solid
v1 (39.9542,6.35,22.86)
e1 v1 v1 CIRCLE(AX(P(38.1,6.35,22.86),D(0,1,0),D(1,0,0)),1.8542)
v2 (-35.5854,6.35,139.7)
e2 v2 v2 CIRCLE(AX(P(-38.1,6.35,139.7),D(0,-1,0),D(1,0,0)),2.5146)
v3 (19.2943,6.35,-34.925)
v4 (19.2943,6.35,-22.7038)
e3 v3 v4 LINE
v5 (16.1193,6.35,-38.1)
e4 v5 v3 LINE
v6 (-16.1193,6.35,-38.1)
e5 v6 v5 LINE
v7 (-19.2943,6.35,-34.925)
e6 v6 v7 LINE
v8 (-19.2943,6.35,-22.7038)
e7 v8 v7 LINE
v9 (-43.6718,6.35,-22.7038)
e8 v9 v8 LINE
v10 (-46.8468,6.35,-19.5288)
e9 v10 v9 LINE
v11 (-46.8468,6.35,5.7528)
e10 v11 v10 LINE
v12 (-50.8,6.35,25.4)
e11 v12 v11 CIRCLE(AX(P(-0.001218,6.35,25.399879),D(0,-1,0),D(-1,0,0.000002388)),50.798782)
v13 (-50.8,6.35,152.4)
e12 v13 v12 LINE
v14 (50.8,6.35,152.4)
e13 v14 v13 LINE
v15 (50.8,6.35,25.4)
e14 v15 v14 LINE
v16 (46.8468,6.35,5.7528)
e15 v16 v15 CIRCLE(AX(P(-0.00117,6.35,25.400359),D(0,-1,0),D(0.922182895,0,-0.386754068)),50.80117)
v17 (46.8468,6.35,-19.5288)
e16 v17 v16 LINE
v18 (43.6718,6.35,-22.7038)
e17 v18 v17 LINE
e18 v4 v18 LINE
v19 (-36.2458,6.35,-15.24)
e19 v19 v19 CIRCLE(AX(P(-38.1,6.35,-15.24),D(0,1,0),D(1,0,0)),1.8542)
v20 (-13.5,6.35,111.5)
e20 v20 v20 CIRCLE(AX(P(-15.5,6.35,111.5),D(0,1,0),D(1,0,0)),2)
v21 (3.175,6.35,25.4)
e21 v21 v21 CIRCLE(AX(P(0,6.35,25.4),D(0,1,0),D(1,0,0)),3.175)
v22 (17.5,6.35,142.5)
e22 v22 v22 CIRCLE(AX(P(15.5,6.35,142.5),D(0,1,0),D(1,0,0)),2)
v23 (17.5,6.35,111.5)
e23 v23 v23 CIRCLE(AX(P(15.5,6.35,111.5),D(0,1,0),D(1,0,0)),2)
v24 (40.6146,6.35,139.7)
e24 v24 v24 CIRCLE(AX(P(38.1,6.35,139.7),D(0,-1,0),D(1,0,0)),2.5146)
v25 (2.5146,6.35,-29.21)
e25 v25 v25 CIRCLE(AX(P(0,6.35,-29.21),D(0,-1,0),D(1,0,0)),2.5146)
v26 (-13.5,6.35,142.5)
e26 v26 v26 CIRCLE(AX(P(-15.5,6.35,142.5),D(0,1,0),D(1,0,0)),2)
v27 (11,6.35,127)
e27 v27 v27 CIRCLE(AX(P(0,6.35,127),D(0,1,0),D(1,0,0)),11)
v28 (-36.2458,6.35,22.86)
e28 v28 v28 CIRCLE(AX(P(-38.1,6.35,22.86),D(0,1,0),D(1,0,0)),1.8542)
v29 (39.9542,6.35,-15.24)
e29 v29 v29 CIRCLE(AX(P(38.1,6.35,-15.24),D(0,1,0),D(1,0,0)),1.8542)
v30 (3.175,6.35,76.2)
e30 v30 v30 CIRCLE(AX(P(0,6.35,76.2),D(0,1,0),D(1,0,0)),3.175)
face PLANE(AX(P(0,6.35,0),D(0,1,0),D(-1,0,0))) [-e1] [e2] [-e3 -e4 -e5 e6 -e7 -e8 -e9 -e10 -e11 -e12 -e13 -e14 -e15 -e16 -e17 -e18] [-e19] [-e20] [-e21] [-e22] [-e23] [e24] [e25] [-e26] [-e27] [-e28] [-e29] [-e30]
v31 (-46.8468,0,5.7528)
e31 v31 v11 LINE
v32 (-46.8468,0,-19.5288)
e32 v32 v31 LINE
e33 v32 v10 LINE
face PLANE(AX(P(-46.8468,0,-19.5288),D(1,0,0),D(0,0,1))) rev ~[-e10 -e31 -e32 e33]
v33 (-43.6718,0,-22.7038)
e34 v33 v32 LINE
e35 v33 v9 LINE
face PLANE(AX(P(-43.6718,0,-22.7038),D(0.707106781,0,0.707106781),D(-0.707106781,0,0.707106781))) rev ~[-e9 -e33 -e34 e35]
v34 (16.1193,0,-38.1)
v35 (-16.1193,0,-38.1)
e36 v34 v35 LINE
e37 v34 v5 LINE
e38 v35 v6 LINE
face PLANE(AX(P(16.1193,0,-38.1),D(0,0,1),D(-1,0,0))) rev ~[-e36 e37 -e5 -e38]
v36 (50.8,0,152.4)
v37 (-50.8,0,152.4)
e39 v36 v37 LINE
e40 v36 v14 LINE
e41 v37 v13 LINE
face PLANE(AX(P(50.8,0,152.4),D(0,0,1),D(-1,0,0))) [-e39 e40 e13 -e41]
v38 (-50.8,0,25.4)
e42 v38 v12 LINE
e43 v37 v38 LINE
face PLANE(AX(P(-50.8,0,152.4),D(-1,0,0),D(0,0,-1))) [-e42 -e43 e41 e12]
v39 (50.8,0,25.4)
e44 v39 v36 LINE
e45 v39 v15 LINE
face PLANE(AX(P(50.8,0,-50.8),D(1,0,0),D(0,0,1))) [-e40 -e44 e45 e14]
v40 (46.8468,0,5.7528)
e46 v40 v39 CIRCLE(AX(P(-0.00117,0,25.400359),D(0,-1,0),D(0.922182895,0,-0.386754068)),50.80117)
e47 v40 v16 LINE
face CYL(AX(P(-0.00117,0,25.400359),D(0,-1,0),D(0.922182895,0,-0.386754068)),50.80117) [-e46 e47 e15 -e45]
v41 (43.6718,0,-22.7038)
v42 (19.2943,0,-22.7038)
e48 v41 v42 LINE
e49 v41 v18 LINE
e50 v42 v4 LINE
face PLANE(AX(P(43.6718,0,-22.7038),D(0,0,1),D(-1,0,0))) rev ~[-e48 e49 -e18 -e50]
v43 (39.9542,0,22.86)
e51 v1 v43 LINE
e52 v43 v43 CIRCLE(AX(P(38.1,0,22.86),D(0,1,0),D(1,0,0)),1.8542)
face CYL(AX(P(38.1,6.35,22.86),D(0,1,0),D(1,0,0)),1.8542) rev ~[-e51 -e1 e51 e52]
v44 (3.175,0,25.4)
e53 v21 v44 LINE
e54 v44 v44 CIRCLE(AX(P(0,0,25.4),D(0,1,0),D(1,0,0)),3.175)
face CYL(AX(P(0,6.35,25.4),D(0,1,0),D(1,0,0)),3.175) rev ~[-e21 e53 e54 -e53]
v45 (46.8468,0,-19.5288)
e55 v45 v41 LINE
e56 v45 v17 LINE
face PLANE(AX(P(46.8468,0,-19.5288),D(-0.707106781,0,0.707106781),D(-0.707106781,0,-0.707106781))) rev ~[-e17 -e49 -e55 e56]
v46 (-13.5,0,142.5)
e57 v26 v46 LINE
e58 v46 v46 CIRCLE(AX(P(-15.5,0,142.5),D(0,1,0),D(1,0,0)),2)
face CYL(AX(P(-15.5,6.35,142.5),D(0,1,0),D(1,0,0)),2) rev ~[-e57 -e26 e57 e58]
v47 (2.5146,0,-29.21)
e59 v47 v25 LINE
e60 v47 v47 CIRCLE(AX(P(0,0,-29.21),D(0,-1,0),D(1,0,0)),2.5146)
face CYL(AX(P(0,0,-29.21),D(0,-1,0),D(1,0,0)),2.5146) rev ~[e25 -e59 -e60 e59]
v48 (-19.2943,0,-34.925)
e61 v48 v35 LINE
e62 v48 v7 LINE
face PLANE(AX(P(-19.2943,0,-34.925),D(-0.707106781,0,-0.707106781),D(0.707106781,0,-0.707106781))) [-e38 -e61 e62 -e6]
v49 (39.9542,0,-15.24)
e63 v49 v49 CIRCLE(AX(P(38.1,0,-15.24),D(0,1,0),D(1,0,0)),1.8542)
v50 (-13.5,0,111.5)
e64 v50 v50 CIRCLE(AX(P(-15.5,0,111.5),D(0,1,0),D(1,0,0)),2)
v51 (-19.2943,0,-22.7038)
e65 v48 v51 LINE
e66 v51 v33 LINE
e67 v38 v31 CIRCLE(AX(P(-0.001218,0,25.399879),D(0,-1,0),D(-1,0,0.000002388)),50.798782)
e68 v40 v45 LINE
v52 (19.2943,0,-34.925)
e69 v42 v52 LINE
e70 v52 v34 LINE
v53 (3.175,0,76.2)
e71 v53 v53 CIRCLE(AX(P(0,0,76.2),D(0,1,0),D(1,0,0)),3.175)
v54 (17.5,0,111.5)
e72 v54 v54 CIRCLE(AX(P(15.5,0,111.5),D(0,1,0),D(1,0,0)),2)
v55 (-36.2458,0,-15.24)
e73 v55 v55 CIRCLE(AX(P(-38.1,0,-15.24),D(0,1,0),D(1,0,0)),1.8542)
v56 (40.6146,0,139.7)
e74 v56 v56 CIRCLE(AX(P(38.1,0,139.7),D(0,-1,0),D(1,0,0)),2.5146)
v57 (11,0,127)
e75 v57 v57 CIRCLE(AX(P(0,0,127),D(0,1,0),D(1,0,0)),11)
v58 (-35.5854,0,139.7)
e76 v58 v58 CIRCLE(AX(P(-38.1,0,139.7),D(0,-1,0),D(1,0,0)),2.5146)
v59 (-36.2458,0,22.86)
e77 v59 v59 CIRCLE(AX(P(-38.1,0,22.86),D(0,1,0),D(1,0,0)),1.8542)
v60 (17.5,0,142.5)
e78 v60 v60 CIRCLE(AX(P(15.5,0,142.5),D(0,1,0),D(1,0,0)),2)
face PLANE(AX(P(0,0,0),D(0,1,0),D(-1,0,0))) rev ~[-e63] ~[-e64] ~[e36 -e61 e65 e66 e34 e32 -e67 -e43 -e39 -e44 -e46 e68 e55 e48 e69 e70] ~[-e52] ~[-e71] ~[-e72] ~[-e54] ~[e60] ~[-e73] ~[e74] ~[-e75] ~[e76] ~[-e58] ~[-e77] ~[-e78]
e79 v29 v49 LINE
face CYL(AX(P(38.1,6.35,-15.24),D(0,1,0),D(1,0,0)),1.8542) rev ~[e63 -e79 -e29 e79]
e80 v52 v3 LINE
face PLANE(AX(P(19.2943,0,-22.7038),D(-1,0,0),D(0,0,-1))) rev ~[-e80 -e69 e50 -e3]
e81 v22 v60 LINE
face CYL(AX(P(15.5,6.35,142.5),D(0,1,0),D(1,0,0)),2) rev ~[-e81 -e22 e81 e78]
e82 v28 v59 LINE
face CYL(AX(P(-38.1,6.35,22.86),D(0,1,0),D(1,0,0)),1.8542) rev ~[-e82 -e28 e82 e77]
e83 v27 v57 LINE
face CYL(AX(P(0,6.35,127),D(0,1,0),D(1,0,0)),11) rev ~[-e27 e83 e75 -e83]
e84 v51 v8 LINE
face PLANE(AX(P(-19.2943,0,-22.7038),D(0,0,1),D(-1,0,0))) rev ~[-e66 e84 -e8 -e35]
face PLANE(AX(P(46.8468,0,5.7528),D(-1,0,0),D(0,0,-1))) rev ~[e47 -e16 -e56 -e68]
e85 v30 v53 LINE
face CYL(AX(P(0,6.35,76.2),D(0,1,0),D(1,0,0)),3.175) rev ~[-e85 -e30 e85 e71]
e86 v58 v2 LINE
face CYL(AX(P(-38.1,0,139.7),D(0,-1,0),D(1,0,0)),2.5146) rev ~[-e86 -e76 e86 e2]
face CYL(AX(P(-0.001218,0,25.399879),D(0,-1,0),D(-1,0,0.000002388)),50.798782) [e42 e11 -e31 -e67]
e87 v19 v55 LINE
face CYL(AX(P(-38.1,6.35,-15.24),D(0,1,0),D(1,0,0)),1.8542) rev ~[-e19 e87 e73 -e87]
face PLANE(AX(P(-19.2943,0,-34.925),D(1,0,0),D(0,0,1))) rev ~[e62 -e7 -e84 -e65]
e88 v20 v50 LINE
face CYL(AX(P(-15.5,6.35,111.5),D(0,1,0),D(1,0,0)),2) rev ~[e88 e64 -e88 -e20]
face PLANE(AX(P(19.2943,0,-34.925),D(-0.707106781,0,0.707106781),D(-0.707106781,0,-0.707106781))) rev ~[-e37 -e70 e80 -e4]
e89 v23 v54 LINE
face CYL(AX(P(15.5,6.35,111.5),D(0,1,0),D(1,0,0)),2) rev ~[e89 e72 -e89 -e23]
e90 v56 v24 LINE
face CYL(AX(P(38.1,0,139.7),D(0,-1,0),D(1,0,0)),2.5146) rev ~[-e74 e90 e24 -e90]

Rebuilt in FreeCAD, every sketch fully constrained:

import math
import FreeCAD as App
import Part
import Sketcher

V = App.Vector
Q = App.Units.Quantity

doc = App.newDocument("Part")
body = doc.addObject("PartDesign::Body", "Body")

sketch1 = body.newObject("Sketcher::SketchObject", "Sketch")
sketch1.AttachmentSupport = (doc.getObject("XZ_Plane"), [""])
sketch1.MapMode = "FlatFace"
sketch1.addGeometry([
    Part.LineSegment(V(51, -51, 0), V(-51, -51, 0)),
    Part.LineSegment(V(-51, -51, 0), V(-51, 152, 0)),
    Part.LineSegment(V(-51, 152, 0), V(51, 152, 0)),
    Part.LineSegment(V(51, 152, 0), V(51, -51, 0)),
], False)
sketch1.addConstraint([
    Sketcher.Constraint("Coincident", 0, 2, 1, 1),
    Sketcher.Constraint("Coincident", 1, 2, 2, 1),
    Sketcher.Constraint("Coincident", 2, 2, 3, 1),
    Sketcher.Constraint("Coincident", 3, 2, 0, 1),
    Sketcher.Constraint("Horizontal", 0),
    Sketcher.Constraint("Vertical", 1),
    Sketcher.Constraint("Horizontal", 2),
    Sketcher.Constraint("Vertical", 3),
    Sketcher.Constraint("DistanceX", 0, 2, 0, 1, Q("4 in")),
    Sketcher.Constraint("DistanceY", 1, 1, 1, 2, Q("8 in")),
    Sketcher.Constraint("DistanceX", 0, 2, -1, 1, Q("2 in")),
    Sketcher.Constraint("DistanceY", 0, 2, -1, 1, Q("2 in")),
])
pad1 = body.newObject("PartDesign::Pad", "Pad")
pad1.Profile = sketch1
pad1.Length = Q("0.25 in")
pad1.Reversed = True

sketch2 = body.newObject("Sketcher::SketchObject", "Sketch001")
sketch2.AttachmentSupport = (doc.getObject("XZ_Plane"), [""])
sketch2.MapMode = "FlatFace"
sketch2.AttachmentOffset = App.Placement(V(0, 0, -0.25 * 25.4), App.Rotation())
sketch2.addGeometry([
    Part.Circle(V(0, 127, 0), V(0, 0, 1), 11),
    Part.Circle(V(0, 76.2, 0), V(0, 0, 1), 3.2),
    Part.Circle(V(0, 25.4, 0), V(0, 0, 1), 3.2),
], False)
sketch2.addConstraint([
    Sketcher.Constraint("Equal", 1, 2),
    Sketcher.Constraint("PointOnObject", 0, 3, -2),
    Sketcher.Constraint("PointOnObject", 1, 3, -2),
    Sketcher.Constraint("PointOnObject", 2, 3, -2),
    Sketcher.Constraint("Diameter", 1, Q("0.25 in")),
    Sketcher.Constraint("DistanceY", -1, 1, 2, 3, Q("1 in")),
    Sketcher.Constraint("DistanceY", 1, 3, 0, 3, Q("2 in")),
    Sketcher.Constraint("DistanceY", 2, 3, 1, 3, Q("2 in")),
    Sketcher.Constraint("Diameter", 0, 22.0),
])
pocket1 = body.newObject("PartDesign::Pocket", "Pocket")
pocket1.Profile = sketch2
pocket1.Type = "ThroughAll"
pocket1.Reversed = True

sketch3 = body.newObject("Sketcher::SketchObject", "Sketch002")
sketch3.AttachmentSupport = (doc.getObject("XZ_Plane"), [""])
sketch3.MapMode = "FlatFace"
sketch3.AttachmentOffset = App.Placement(V(0, 0, -0.25 * 25.4), App.Rotation())
sketch3.addGeometry([
    Part.Circle(V(15.5, 111.5, 0), V(0, 0, 1), 2),
    Part.Circle(V(15.5, 142.5, 0), V(0, 0, 1), 2),
    Part.Circle(V(-15.5, 142.5, 0), V(0, 0, 1), 2),
    Part.Circle(V(-15.5, 111.5, 0), V(0, 0, 1), 2),
], False)
sketch3.addConstraint([
    Sketcher.Constraint("Equal", 0, 1),
    Sketcher.Constraint("Equal", 1, 2),
    Sketcher.Constraint("Equal", 2, 3),
    Sketcher.Constraint("Symmetric", 1, 3, 2, 3, -2),
    Sketcher.Constraint("Symmetric", 0, 3, 3, 3, -2),
    Sketcher.Constraint("Vertical", 0, 3, 1, 3),
    Sketcher.Constraint("Diameter", 0, 4.0),
    Sketcher.Constraint("DistanceX", -1, 1, 0, 3, 15.5),
    Sketcher.Constraint("DistanceY", -1, 1, 0, 3, 111.5),
    Sketcher.Constraint("DistanceY", -1, 1, 1, 3, 142.5),
])
pocket2 = body.newObject("PartDesign::Pocket", "Pocket001")
pocket2.Profile = sketch3
pocket2.Type = "ThroughAll"
pocket2.Reversed = True

sketch4 = body.newObject("Sketcher::SketchObject", "Sketch003")
sketch4.AttachmentSupport = (doc.getObject("XZ_Plane"), [""])
sketch4.MapMode = "FlatFace"
sketch4.addGeometry([
    Part.Circle(V(-38.1, 139.7, 0), V(0, 0, 1), 2.5),
    Part.Circle(V(38.1, 139.7, 0), V(0, 0, 1), 2.5),
    Part.Circle(V(-38.1, -38.1, 0), V(0, 0, 1), 2.5),
    Part.Circle(V(38.1, -38.1, 0), V(0, 0, 1), 2.5),
], False)
sketch4.addConstraint([
    Sketcher.Constraint("Equal", 0, 1),
    Sketcher.Constraint("Equal", 1, 2),
    Sketcher.Constraint("Equal", 2, 3),
    Sketcher.Constraint("Symmetric", 0, 3, 1, 3, -2),
    Sketcher.Constraint("Symmetric", 2, 3, 3, 3, -2),
    Sketcher.Constraint("Vertical", 0, 3, 2, 3),
    Sketcher.Constraint("Diameter", 0, Q("0.198 in")),
    Sketcher.Constraint("DistanceX", 0, 3, 1, 3, Q("3 in")),
    Sketcher.Constraint("DistanceY", 2, 3, 0, 3, Q("7 in")),
    Sketcher.Constraint("DistanceY", -1, 1, 0, 3, Q("5.5 in")),
])
pocket3 = body.newObject("PartDesign::Pocket", "Pocket002")
pocket3.Profile = sketch4
pocket3.Type = "ThroughAll"

sketch5 = body.newObject("Sketcher::SketchObject", "Sketch004")
sketch5.AttachmentSupport = (doc.getObject("XZ_Plane"), [""])
sketch5.MapMode = "FlatFace"
sketch5.AttachmentOffset = App.Placement(V(0, 0, -0.25 * 25.4), App.Rotation())
sketch5.addGeometry([
    Part.Circle(V(-38.1, -15.2, 0), V(0, 0, 1), 1.9),
    Part.Circle(V(-38.1, 22.9, 0), V(0, 0, 1), 1.9),
    Part.Circle(V(38.1, -15.2, 0), V(0, 0, 1), 1.9),
    Part.Circle(V(38.1, 22.9, 0), V(0, 0, 1), 1.9),
], False)
sketch5.addConstraint([
    Sketcher.Constraint("Equal", 0, 1),
    Sketcher.Constraint("Equal", 1, 2),
    Sketcher.Constraint("Equal", 2, 3),
    Sketcher.Constraint("Symmetric", 0, 3, 2, 3, -2),
    Sketcher.Constraint("Symmetric", 1, 3, 3, 3, -2),
    Sketcher.Constraint("Vertical", 0, 3, 1, 3),
    Sketcher.Constraint("Diameter", 0, Q("0.146 in")),
    Sketcher.Constraint("DistanceX", 0, 3, 2, 3, Q("3 in")),
    Sketcher.Constraint("DistanceY", 0, 3, -1, 1, Q("0.6 in")),
    Sketcher.Constraint("DistanceY", -1, 1, 1, 3, Q("0.9 in")),
])
pocket4 = body.newObject("PartDesign::Pocket", "Pocket003")
pocket4.Profile = sketch5
pocket4.Type = "ThroughAll"
pocket4.Reversed = True

sketch6 = body.newObject("Sketcher::SketchObject", "Sketch005")
sketch6.AttachmentSupport = (doc.getObject("XZ_Plane"), [""])
sketch6.MapMode = "FlatFace"
sketch6.addGeometry([
    Part.LineSegment(V(-50.8, 25.4, 0), V(-50.8, -50.8, 0)),
    Part.LineSegment(V(-50.8, -50.8, 0), V(50.8, -50.8, 0)),
    Part.LineSegment(V(50.8, -50.8, 0), V(50.8, 25.4, 0)),
    Part.ArcOfCircle(Part.Circle(V(0, 25.4, 0), V(0, 0, 1), 50.8), math.radians(-23), math.radians(0)),
    Part.LineSegment(V(46.8, 5.8, 0), V(46.8, -19.5, 0)),
    Part.LineSegment(V(46.8, -19.5, 0), V(43.7, -22.7, 0)),
    Part.LineSegment(V(43.7, -22.7, 0), V(19.3, -22.7, 0)),
    Part.LineSegment(V(19.3, -22.7, 0), V(19.3, -34.9, 0)),
    Part.LineSegment(V(19.3, -34.9, 0), V(16.1, -38.1, 0)),
    Part.LineSegment(V(16.1, -38.1, 0), V(-16.1, -38.1, 0)),
    Part.LineSegment(V(-16.1, -38.1, 0), V(-19.3, -34.9, 0)),
    Part.LineSegment(V(-19.3, -34.9, 0), V(-19.3, -22.7, 0)),
    Part.LineSegment(V(-19.3, -22.7, 0), V(-43.7, -22.7, 0)),
    Part.LineSegment(V(-43.7, -22.7, 0), V(-46.8, -19.5, 0)),
    Part.LineSegment(V(-46.8, -19.5, 0), V(-46.8, 5.8, 0)),
    Part.ArcOfCircle(Part.Circle(V(0, 25.4, 0), V(0, 0, 1), 50.8), math.radians(180), math.radians(203)),
    Part.Circle(V(-38.1, -38.1, 0), V(0, 0, 1), 2.5),
    Part.Circle(V(38.1, -38.1, 0), V(0, 0, 1), 2.5),
], False)
sketch6.addConstraint([
    Sketcher.Constraint("Coincident", 0, 2, 1, 1),
    Sketcher.Constraint("Coincident", 1, 2, 2, 1),
    Sketcher.Constraint("Tangent", 2, 2, 3, 2),
    Sketcher.Constraint("Coincident", 3, 1, 4, 1),
    Sketcher.Constraint("Coincident", 4, 2, 5, 1),
    Sketcher.Constraint("Coincident", 5, 2, 6, 1),
    Sketcher.Constraint("Coincident", 6, 2, 7, 1),
    Sketcher.Constraint("Coincident", 7, 2, 8, 1),
    Sketcher.Constraint("Coincident", 8, 2, 9, 1),
    Sketcher.Constraint("Coincident", 9, 2, 10, 1),
    Sketcher.Constraint("Coincident", 10, 2, 11, 1),
    Sketcher.Constraint("Coincident", 11, 2, 12, 1),
    Sketcher.Constraint("Coincident", 12, 2, 13, 1),
    Sketcher.Constraint("Coincident", 13, 2, 14, 1),
    Sketcher.Constraint("Coincident", 14, 2, 15, 2),
    Sketcher.Constraint("Tangent", 15, 1, 0, 1),
    Sketcher.Constraint("Vertical", 0),
    Sketcher.Constraint("Horizontal", 1),
    Sketcher.Constraint("Vertical", 2),
    Sketcher.Constraint("Vertical", 4),
    Sketcher.Constraint("Horizontal", 6),
    Sketcher.Constraint("Vertical", 7),
    Sketcher.Constraint("Horizontal", 9),
    Sketcher.Constraint("Vertical", 11),
    Sketcher.Constraint("Horizontal", 12),
    Sketcher.Constraint("Vertical", 14),
    Sketcher.Constraint("Equal", 16, 17),
    Sketcher.Constraint("Symmetric", 16, 3, 17, 3, -2),
    Sketcher.Constraint("Symmetric", 7, 2, 10, 2, -2),
    Sketcher.Constraint("Symmetric", 5, 2, 12, 2, -2),
    Sketcher.Constraint("Symmetric", 4, 2, 13, 2, -2),
    Sketcher.Constraint("Symmetric", 2, 2, 15, 1, -2),
    Sketcher.Constraint("Parallel", 5, 8),
    Sketcher.Constraint("Perpendicular", 8, 10),
    Sketcher.Constraint("Parallel", 10, 13),
    Sketcher.Constraint("Horizontal", 17, 3, 8, 2),
    Sketcher.Constraint("Horizontal", 3, 1, 14, 2),
    Sketcher.Constraint("Vertical", 3, 3, 15, 3),
    Sketcher.Constraint("Equal", 5, 8),
    Sketcher.Constraint("DistanceX", 1, 1, 1, 2, Q("4 in")),
    Sketcher.Constraint("DistanceY", 0, 2, 0, 1, Q("3 in")),
    Sketcher.Constraint("Diameter", 16, Q("0.198 in")),
    Sketcher.Constraint("DistanceY", -1, 1, 15, 3, Q("1 in")),
    Sketcher.Constraint("DistanceX", 16, 3, 17, 3, Q("3 in")),
    Sketcher.Constraint("DistanceX", 5, 2, 4, 2, Q("0.125 in")),
    Sketcher.Constraint("DistanceY", 16, 3, -1, 1, Q("1.5 in")),
    Sketcher.Constraint("DistanceX", -1, 1, 6, 2, 19.2943),
    Sketcher.Constraint("DistanceX", 6, 2, 6, 1, 24.3775),
    Sketcher.Constraint("DistanceY", 4, 2, 4, 1, 25.2816),
])
pocket5 = body.newObject("PartDesign::Pocket", "Pocket004")
pocket5.Profile = sketch6
pocket5.Type = "ThroughAll"

sketch7 = body.newObject("Sketcher::SketchObject", "Sketch006")
sketch7.AttachmentSupport = (doc.getObject("XZ_Plane"), [""])
sketch7.MapMode = "FlatFace"
sketch7.addGeometry(Part.Circle(V(0, -29.2, 0), V(0, 0, 1), 2.5), False)
sketch7.addConstraint([
    Sketcher.Constraint("PointOnObject", 0, 3, -2),
    Sketcher.Constraint("Diameter", 0, Q("0.198 in")),
    Sketcher.Constraint("DistanceY", 0, 3, -1, 1, Q("1.15 in")),
])
pocket6 = body.newObject("PartDesign::Pocket", "Pocket005")
pocket6.Profile = sketch7
pocket6.Type = "ThroughAll"

doc.recompute()
